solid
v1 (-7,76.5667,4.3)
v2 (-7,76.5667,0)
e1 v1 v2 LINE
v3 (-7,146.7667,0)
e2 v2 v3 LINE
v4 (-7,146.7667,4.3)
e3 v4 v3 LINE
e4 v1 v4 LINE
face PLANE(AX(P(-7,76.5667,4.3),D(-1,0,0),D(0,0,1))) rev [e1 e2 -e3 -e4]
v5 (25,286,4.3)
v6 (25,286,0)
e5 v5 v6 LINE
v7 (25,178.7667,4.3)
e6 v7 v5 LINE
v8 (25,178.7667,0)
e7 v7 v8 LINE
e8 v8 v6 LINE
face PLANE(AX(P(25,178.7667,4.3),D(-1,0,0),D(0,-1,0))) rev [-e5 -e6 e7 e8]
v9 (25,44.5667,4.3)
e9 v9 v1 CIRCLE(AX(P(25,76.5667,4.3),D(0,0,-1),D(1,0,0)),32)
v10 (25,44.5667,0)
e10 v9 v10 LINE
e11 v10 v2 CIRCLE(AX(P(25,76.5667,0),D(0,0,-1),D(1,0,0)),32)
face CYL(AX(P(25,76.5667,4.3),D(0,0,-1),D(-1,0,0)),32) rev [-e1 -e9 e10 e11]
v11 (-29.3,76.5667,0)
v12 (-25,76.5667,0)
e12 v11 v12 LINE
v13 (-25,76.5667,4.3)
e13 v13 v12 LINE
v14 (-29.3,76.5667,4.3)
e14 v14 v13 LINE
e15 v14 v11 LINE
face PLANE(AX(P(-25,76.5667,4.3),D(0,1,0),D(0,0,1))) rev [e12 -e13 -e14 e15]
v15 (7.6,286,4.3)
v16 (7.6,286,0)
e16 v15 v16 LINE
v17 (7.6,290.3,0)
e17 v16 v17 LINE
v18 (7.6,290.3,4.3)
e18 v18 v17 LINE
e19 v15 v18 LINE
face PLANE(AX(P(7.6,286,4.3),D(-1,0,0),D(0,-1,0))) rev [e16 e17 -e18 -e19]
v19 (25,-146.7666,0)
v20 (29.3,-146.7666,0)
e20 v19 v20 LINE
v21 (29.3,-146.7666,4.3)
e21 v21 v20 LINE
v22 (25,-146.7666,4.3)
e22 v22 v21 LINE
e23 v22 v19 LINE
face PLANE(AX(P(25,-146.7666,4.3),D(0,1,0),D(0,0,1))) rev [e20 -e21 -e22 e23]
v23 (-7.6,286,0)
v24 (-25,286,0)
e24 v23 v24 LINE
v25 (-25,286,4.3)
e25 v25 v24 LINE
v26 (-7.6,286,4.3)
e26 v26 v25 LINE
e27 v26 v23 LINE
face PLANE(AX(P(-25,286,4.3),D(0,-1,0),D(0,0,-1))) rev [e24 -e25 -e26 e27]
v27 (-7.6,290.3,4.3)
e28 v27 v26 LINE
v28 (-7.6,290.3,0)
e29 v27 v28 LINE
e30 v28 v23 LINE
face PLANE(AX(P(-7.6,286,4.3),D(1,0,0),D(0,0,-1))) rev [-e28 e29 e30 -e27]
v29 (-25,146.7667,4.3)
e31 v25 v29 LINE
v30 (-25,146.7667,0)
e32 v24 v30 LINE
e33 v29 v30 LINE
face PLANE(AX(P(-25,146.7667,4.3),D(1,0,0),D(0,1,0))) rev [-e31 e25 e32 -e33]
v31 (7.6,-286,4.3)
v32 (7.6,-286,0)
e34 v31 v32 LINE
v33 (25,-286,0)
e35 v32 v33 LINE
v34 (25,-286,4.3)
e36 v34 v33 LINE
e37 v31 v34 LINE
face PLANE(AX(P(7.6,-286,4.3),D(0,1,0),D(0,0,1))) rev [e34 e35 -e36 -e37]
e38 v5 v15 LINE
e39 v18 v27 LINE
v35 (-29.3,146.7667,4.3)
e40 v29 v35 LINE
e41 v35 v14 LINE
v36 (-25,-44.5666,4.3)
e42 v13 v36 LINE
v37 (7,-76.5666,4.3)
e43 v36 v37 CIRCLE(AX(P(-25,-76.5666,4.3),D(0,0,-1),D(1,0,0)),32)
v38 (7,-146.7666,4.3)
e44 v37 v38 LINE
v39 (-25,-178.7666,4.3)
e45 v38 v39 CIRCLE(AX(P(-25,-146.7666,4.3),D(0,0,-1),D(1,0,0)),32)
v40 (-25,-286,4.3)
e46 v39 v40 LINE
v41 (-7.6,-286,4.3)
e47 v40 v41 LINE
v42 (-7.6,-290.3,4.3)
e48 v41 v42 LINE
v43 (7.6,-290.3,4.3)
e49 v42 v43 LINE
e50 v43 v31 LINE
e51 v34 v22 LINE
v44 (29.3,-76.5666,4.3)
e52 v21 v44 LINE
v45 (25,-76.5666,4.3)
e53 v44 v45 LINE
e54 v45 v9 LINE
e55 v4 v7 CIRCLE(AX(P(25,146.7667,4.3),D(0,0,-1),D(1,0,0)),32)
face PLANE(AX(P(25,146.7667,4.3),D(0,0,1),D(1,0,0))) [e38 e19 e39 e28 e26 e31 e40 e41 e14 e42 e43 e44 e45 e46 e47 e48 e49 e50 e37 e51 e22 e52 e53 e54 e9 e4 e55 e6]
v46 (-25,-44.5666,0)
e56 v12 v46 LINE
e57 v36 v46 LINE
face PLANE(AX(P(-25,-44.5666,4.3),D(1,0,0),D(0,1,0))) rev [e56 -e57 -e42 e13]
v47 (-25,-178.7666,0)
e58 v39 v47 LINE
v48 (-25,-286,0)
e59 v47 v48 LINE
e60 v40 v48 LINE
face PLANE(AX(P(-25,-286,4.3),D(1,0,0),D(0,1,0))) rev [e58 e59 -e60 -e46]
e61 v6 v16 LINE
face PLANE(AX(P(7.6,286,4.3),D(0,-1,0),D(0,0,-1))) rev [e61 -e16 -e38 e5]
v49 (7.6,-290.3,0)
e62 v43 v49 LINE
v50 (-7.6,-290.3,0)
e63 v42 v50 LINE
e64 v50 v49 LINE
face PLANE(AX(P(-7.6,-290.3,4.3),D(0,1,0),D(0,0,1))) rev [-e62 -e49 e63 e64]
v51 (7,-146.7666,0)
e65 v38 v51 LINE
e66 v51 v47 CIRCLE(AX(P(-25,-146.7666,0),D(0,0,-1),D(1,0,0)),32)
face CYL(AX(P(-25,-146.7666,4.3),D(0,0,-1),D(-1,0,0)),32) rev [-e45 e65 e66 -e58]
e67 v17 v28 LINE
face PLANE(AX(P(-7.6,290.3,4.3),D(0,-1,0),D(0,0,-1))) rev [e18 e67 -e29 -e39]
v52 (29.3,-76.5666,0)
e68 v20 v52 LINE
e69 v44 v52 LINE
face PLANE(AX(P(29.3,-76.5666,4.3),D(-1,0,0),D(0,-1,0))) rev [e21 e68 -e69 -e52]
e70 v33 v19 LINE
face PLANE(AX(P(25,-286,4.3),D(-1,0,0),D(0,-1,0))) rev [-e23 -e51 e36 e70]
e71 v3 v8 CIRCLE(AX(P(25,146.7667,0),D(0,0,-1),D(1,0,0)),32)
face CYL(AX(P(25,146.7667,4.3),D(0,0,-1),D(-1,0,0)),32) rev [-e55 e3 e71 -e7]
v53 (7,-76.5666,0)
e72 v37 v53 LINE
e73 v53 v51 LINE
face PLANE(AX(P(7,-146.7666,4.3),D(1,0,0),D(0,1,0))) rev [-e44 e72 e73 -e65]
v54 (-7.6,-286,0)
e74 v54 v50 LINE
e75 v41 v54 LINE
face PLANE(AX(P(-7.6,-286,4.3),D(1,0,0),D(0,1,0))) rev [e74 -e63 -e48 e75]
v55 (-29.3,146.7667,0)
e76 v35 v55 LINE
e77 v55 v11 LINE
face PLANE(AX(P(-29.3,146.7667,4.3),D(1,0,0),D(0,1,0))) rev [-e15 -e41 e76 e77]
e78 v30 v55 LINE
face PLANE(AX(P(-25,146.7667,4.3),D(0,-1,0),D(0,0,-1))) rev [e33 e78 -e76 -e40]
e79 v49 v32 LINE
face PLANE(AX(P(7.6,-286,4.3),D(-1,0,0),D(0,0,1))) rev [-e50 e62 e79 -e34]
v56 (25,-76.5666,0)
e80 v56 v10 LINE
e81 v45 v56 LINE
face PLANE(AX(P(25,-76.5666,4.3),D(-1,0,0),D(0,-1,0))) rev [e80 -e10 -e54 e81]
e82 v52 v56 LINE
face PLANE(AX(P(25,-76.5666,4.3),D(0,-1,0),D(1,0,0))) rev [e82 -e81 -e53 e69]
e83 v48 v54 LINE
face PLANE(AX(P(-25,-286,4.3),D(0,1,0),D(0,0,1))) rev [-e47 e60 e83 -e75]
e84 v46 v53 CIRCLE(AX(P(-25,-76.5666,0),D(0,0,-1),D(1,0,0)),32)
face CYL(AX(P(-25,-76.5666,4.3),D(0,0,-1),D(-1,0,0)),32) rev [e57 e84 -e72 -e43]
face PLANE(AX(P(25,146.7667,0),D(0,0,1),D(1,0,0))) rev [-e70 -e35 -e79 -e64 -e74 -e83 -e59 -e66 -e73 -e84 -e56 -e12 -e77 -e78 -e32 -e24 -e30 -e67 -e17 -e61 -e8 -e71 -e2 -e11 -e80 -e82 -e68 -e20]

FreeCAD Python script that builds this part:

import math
import FreeCAD as App
import Part
import Sketcher
Q = App.Units.Quantity

doc = App.newDocument("Part")
params = doc.addObject("Spreadsheet::Sheet", "Params")
for row, (alias, value) in enumerate([
    ("sketch1_radius", "32 mm"),
    ("sketch1_width", "17.4 mm"),
    ("sketch1_width2", "15.2 mm"),
    ("sketch1_width3", "4.3 mm"),
    ("sketch1_height", "70.2 mm"),
    ("pad1_length", "4.3 mm"),
], start=1):
    params.set(f"A{row}", alias)
    params.set(f"B{row}", "=" + value)
    params.setAlias(f"B{row}", alias)

body = doc.addObject("PartDesign::Body", "Body")

sketch1 = doc.addObject("Sketcher::SketchObject", "Sketch")
body.addObject(sketch1)
sketch1.AttachmentSupport = (doc.XY_Plane, [""])
sketch1.MapMode = "FlatFace"
sketch1.addGeometry([
    Part.LineSegment(App.Vector(-25, -286, 0), App.Vector(-7.6, -286, 0)),
    Part.LineSegment(App.Vector(-7.6, -286, 0), App.Vector(-7.6, -290.3, 0)),
    Part.LineSegment(App.Vector(-7.6, -290.3, 0), App.Vector(7.6, -290.3, 0)),
    Part.LineSegment(App.Vector(7.6, -290.3, 0), App.Vector(7.6, -286, 0)),
    Part.LineSegment(App.Vector(7.6, -286, 0), App.Vector(25, -286, 0)),
    Part.LineSegment(App.Vector(25, -286, 0), App.Vector(25, -146.8, 0)),
    Part.LineSegment(App.Vector(25, -146.8, 0), App.Vector(29.3, -146.8, 0)),
    Part.LineSegment(App.Vector(29.3, -146.8, 0), App.Vector(29.3, -76.6, 0)),
    Part.LineSegment(App.Vector(29.3, -76.6, 0), App.Vector(25, -76.6, 0)),
    Part.LineSegment(App.Vector(25, -76.6, 0), App.Vector(25, 44.6, 0)),
    Part.ArcOfCircle(Part.Circle(App.Vector(25, 76.6, 0), App.Vector(0, 0, 1), 32), math.radians(180), math.radians(270)),
    Part.LineSegment(App.Vector(-7, 76.6, 0), App.Vector(-7, 146.8, 0)),
    Part.ArcOfCircle(Part.Circle(App.Vector(25, 146.8, 0), App.Vector(0, 0, 1), 32), math.radians(90), math.radians(180)),
    Part.LineSegment(App.Vector(25, 178.8, 0), App.Vector(25, 286, 0)),
    Part.LineSegment(App.Vector(25, 286, 0), App.Vector(7.6, 286, 0)),
    Part.LineSegment(App.Vector(7.6, 286, 0), App.Vector(7.6, 290.3, 0)),
    Part.LineSegment(App.Vector(7.6, 290.3, 0), App.Vector(-7.6, 290.3, 0)),
    Part.LineSegment(App.Vector(-7.6, 290.3, 0), App.Vector(-7.6, 286, 0)),
    Part.LineSegment(App.Vector(-7.6, 286, 0), App.Vector(-25, 286, 0)),
    Part.LineSegment(App.Vector(-25, 286, 0), App.Vector(-25, 146.8, 0)),
    Part.LineSegment(App.Vector(-25, 146.8, 0), App.Vector(-29.3, 146.8, 0)),
    Part.LineSegment(App.Vector(-29.3, 146.8, 0), App.Vector(-29.3, 76.6, 0)),
    Part.LineSegment(App.Vector(-29.3, 76.6, 0), App.Vector(-25, 76.6, 0)),
    Part.LineSegment(App.Vector(-25, 76.6, 0), App.Vector(-25, -44.6, 0)),
    Part.ArcOfCircle(Part.Circle(App.Vector(-25, -76.6, 0), App.Vector(0, 0, 1), 32), math.radians(0), math.radians(90)),
    Part.LineSegment(App.Vector(7, -76.6, 0), App.Vector(7, -146.8, 0)),
    Part.ArcOfCircle(Part.Circle(App.Vector(-25, -146.8, 0), App.Vector(0, 0, 1), 32), math.radians(-90), math.radians(0)),
    Part.LineSegment(App.Vector(-25, -178.8, 0), App.Vector(-25, -286, 0)),
], False)
sketch1.addConstraint([
    Sketcher.Constraint("Coincident", 0, 2, 1, 1),
    Sketcher.Constraint("Coincident", 1, 2, 2, 1),
    Sketcher.Constraint("Coincident", 2, 2, 3, 1),
    Sketcher.Constraint("Coincident", 3, 2, 4, 1),
    Sketcher.Constraint("Coincident", 4, 2, 5, 1),
    Sketcher.Constraint("Coincident", 5, 2, 6, 1),
    Sketcher.Constraint("Coincident", 6, 2, 7, 1),
    Sketcher.Constraint("Coincident", 7, 2, 8, 1),
    Sketcher.Constraint("Coincident", 8, 2, 9, 1),
    Sketcher.Constraint("Coincident", 9, 2, 10, 2),
    Sketcher.Constraint("Tangent", 10, 1, 11, 1),
    Sketcher.Constraint("Tangent", 11, 2, 12, 2),
    Sketcher.Constraint("Coincident", 12, 1, 13, 1),
    Sketcher.Constraint("Coincident", 13, 2, 14, 1),
    Sketcher.Constraint("Coincident", 14, 2, 15, 1),
    Sketcher.Constraint("Coincident", 15, 2, 16, 1),
    Sketcher.Constraint("Coincident", 16, 2, 17, 1),
    Sketcher.Constraint("Coincident", 17, 2, 18, 1),
    Sketcher.Constraint("Coincident", 18, 2, 19, 1),
    Sketcher.Constraint("Coincident", 19, 2, 20, 1),
    Sketcher.Constraint("Coincident", 20, 2, 21, 1),
    Sketcher.Constraint("Coincident", 21, 2, 22, 1),
    Sketcher.Constraint("Coincident", 22, 2, 23, 1),
    Sketcher.Constraint("Coincident", 23, 2, 24, 2),
    Sketcher.Constraint("Tangent", 24, 1, 25, 1),
    Sketcher.Constraint("Tangent", 25, 2, 26, 2),
    Sketcher.Constraint("Coincident", 26, 1, 27, 1),
    Sketcher.Constraint("Coincident", 27, 2, 0, 1),
    Sketcher.Constraint("Horizontal", 0),
    Sketcher.Constraint("Vertical", 1),
    Sketcher.Constraint("Horizontal", 2),
    Sketcher.Constraint("Vertical", 3),
    Sketcher.Constraint("Horizontal", 4),
    Sketcher.Constraint("Vertical", 5),
    Sketcher.Constraint("Horizontal", 6),
    Sketcher.Constraint("Vertical", 7),
    Sketcher.Constraint("Horizontal", 8),
    Sketcher.Constraint("Vertical", 9),
    Sketcher.Constraint("Vertical", 11),
    Sketcher.Constraint("Vertical", 13),
    Sketcher.Constraint("Horizontal", 14),
    Sketcher.Constraint("Vertical", 15),
    Sketcher.Constraint("Horizontal", 16),
    Sketcher.Constraint("Vertical", 17),
    Sketcher.Constraint("Horizontal", 18),
    Sketcher.Constraint("Vertical", 19),
    Sketcher.Constraint("Horizontal", 20),
    Sketcher.Constraint("Vertical", 21),
    Sketcher.Constraint("Horizontal", 22),
    Sketcher.Constraint("Vertical", 23),
    Sketcher.Constraint("Vertical", 25),
    Sketcher.Constraint("Vertical", 27),
    Sketcher.Constraint("Equal", 10, 12),
    Sketcher.Constraint("Equal", 12, 24),
    Sketcher.Constraint("Equal", 24, 26),
    Sketcher.Constraint("Symmetric", 0, 2, 14, 2, -1, 1),
    Sketcher.Constraint("Symmetric", 2, 2, 16, 2, -1, 1),
    Sketcher.Constraint("Symmetric", 4, 2, 18, 2, -1, 1),
    Sketcher.Constraint("Symmetric", 0, 2, 3, 2, -2),
    Sketcher.Constraint("Horizontal", 26, 3, 5, 2),
    Sketcher.Constraint("Horizontal", 24, 3, 7, 2),
    Sketcher.Constraint("Horizontal", 11, 2, 19, 2),
    Sketcher.Constraint("Horizontal", 10, 1, 21, 2),
    Sketcher.Constraint("Vertical", 12, 3, 4, 2),
    Sketcher.Constraint("Vertical", 5, 2, 8, 2),
    Sketcher.Constraint("Vertical", 9, 2, 12, 1),
    Sketcher.Constraint("Vertical", 26, 3, 18, 2),
    Sketcher.Constraint("Vertical", 19, 2, 22, 2),
    Sketcher.Constraint("Vertical", 23, 2, 26, 1),
    Sketcher.Constraint("Equal", 8, 20),
    Sketcher.Constraint("Equal", 22, 1),
    Sketcher.Constraint("Equal", 7, 11),
    Sketcher.Constraint("Radius", 10, Q("32 mm")),
    Sketcher.Constraint("DistanceX", 0, 1, 0, 2, Q("17.4 mm")),
    Sketcher.Constraint("DistanceX", 2, 1, 2, 2, Q("15.2 mm")),
    Sketcher.Constraint("DistanceX", 6, 1, 6, 2, Q("4.3 mm")),
    Sketcher.Constraint("DistanceY", 7, 1, 7, 2, Q("70.2 mm")),
    Sketcher.Constraint("DistanceY", 0, 2, -1, 1, Q("286 mm")),
    Sketcher.Constraint("DistanceY", 5, 1, 5, 2, Q("139.2334 mm")),
    Sketcher.Constraint("DistanceY", 9, 1, 9, 2, Q("121.1333 mm")),
])
sketch1.setExpression("Constraints[72]", "Params.sketch1_radius")
sketch1.setExpression("Constraints[73]", "Params.sketch1_width")
sketch1.setExpression("Constraints[74]", "Params.sketch1_width2")
sketch1.setExpression("Constraints[75]", "Params.sketch1_width3")
sketch1.setExpression("Constraints[76]", "Params.sketch1_height")
pad1 = doc.addObject("PartDesign::Pad", "Pad")
body.addObject(pad1)
pad1.Profile = sketch1
pad1.setExpression("Length", "Params.pad1_length")

doc.recompute()
